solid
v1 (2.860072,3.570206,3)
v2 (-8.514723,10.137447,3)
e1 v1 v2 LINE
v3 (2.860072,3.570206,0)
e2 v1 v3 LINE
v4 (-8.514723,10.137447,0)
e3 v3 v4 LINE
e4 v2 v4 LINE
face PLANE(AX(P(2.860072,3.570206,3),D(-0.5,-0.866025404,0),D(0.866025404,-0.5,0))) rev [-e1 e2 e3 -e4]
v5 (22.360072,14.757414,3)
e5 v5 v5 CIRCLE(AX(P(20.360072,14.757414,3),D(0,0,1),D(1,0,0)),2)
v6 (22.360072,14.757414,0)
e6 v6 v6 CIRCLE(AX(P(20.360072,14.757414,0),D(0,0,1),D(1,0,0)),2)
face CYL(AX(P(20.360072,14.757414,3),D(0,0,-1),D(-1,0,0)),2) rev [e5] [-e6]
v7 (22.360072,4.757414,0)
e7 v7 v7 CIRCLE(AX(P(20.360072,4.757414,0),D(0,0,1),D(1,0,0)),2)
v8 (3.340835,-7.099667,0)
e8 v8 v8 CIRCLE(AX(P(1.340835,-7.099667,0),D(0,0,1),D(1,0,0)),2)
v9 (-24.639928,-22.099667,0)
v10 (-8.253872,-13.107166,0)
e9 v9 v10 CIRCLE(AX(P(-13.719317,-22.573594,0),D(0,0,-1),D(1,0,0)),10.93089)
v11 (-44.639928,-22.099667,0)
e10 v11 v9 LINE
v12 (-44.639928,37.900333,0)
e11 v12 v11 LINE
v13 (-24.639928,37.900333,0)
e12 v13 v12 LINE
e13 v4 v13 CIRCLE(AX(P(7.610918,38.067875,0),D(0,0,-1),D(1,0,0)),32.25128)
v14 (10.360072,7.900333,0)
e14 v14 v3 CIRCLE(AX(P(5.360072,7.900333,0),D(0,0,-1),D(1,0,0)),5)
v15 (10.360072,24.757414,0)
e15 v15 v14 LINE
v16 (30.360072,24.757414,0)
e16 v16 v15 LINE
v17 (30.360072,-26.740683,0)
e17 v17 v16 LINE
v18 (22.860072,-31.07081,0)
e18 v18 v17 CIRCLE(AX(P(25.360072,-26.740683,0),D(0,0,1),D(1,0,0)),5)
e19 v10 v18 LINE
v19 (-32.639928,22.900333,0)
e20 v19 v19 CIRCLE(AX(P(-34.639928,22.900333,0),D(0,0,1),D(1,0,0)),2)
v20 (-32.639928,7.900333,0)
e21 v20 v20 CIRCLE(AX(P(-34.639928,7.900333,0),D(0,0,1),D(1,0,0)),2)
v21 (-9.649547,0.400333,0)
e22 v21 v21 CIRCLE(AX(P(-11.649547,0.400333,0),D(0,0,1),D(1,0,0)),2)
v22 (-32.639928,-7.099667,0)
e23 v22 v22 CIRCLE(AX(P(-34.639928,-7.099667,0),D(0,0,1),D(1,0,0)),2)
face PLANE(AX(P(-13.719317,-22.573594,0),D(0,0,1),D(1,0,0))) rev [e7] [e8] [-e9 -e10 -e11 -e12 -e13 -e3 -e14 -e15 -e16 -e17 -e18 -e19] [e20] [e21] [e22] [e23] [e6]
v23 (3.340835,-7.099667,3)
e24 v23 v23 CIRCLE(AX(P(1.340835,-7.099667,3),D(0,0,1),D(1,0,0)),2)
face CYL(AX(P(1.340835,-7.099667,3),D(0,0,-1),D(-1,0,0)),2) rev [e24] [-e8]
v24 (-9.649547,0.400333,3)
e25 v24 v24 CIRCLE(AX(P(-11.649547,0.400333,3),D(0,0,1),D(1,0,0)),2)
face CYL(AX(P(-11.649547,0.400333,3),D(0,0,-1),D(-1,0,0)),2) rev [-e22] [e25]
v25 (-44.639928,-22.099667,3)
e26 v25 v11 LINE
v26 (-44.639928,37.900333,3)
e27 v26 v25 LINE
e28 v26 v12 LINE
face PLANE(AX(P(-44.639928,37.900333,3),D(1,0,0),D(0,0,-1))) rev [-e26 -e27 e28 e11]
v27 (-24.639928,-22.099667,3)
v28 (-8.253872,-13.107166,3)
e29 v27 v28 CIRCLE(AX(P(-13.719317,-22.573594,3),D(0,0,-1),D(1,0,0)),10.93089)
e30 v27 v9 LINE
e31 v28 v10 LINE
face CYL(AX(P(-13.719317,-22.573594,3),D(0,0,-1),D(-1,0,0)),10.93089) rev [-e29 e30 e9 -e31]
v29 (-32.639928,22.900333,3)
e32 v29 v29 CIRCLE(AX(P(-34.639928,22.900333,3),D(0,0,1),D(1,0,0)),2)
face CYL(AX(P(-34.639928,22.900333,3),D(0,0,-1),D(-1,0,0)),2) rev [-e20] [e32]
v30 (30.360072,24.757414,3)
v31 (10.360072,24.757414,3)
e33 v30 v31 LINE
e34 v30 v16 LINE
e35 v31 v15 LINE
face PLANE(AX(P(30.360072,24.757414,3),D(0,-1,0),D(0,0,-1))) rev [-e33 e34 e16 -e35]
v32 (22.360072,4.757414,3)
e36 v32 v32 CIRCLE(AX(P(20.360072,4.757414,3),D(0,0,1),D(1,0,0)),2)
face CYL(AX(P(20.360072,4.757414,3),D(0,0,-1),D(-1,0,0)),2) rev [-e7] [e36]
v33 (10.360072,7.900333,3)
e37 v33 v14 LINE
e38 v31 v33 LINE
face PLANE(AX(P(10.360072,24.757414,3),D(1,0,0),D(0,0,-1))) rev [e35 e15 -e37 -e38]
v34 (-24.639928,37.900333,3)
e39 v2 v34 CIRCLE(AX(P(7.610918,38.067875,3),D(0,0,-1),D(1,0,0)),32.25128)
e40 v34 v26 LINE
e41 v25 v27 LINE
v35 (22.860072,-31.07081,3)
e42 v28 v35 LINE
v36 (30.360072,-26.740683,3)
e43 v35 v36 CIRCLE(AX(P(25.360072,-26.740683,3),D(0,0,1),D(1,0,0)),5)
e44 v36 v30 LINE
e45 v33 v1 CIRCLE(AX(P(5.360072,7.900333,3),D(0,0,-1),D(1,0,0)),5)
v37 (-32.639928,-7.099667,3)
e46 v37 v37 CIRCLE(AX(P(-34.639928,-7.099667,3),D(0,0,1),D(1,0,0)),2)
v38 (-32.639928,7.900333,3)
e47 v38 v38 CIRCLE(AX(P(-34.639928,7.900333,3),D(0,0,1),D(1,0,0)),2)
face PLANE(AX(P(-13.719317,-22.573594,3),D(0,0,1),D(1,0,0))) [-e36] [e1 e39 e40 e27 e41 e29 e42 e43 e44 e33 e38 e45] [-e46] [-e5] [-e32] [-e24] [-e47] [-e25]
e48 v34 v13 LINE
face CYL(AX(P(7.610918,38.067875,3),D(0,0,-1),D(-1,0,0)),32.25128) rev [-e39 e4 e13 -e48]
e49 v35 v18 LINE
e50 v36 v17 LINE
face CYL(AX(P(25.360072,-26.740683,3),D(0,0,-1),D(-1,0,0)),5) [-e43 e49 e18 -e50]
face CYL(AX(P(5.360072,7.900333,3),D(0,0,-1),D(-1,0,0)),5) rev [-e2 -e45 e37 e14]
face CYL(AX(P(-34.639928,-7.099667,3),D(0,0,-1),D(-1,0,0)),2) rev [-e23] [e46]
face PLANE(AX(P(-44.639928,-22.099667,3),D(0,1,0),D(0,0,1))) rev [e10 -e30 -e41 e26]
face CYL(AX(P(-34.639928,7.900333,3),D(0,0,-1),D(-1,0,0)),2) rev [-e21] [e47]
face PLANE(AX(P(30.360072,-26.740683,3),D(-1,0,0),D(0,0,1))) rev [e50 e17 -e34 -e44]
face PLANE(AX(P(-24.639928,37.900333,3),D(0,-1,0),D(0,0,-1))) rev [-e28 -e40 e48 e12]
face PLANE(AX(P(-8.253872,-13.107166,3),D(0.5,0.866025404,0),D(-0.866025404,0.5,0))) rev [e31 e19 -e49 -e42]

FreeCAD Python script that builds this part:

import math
import FreeCAD as App
import Part
import Sketcher
Q = App.Units.Quantity

doc = App.newDocument("Part")
params = doc.addObject("Spreadsheet::Sheet", "Params")
for row, (alias, value) in enumerate([
    ("sketch1_diameter", "4 mm"),
    ("sketch1_radius", "5 mm"),
    ("sketch1_width", "20 mm"),
    ("sketch1_height", "60 mm"),
    ("pad1_length", "3 mm"),
], start=1):
    params.set(f"A{row}", alias)
    params.set(f"B{row}", "=" + value)
    params.setAlias(f"B{row}", alias)

body = doc.addObject("PartDesign::Body", "Body")

# Sketch on XY plane
sketch1 = body.newObject("Sketcher::SketchObject", "Sketch")
sketch1.AttachmentSupport = (doc.getObject("XY_Plane"), [""])
sketch1.MapMode = "FlatFace"
sketch1.addGeometry([
    Part.LineSegment(App.Vector(-8.3, -13.1, 0), App.Vector(22.9, -31.1, 0)),  # 0
    Part.ArcOfCircle(Part.Circle(App.Vector(25.4, -26.7, 0), App.Vector(0, 0, 1), 5), math.radians(-120), math.radians(0)),  # 1
    Part.LineSegment(App.Vector(30.4, -26.7, 0), App.Vector(30.4, 24.8, 0)),  # 2
    Part.LineSegment(App.Vector(30.4, 24.8, 0), App.Vector(10.4, 24.8, 0)),  # 3
    Part.LineSegment(App.Vector(10.4, 24.8, 0), App.Vector(10.4, 7.9, 0)),  # 4
    Part.ArcOfCircle(Part.Circle(App.Vector(5.4, 7.9, 0), App.Vector(0, 0, 1), 5), math.radians(-120), math.radians(0)),  # 5
    Part.LineSegment(App.Vector(2.9, 3.6, 0), App.Vector(-8.5, 10.1, 0)),  # 6
    Part.ArcOfCircle(Part.Circle(App.Vector(7.6, 38.1, 0), App.Vector(0, 0, 1), 32.3), math.radians(-180), math.radians(-120)),  # 7
    Part.LineSegment(App.Vector(-24.6, 37.9, 0), App.Vector(-44.6, 37.9, 0)),  # 8
    Part.LineSegment(App.Vector(-44.6, 37.9, 0), App.Vector(-44.6, -22.1, 0)),  # 9
    Part.LineSegment(App.Vector(-44.6, -22.1, 0), App.Vector(-24.6, -22.1, 0)),  # 10
    Part.ArcOfCircle(Part.Circle(App.Vector(-13.7, -22.6, 0), App.Vector(0, 0, 1), 10.9), math.radians(60), math.radians(178)),  # 11
    Part.Circle(App.Vector(-34.6, -7.1, 0), App.Vector(0, 0, 1), 2),  # 12
    Part.Circle(App.Vector(-11.6, 0.4, 0), App.Vector(0, 0, 1), 2),  # 13
    Part.Circle(App.Vector(1.3, -7.1, 0), App.Vector(0, 0, 1), 2),  # 14
    Part.Circle(App.Vector(20.4, 4.8, 0), App.Vector(0, 0, 1), 2),  # 15
    Part.Circle(App.Vector(-34.6, 7.9, 0), App.Vector(0, 0, 1), 2),  # 16
    Part.Circle(App.Vector(-34.6, 22.9, 0), App.Vector(0, 0, 1), 2),  # 17
    Part.Circle(App.Vector(20.4, 14.8, 0), App.Vector(0, 0, 1), 2),  # 18
], False)
sketch1.addConstraint([
    Sketcher.Constraint("Tangent", 0, 2, 1, 1),
    Sketcher.Constraint("Tangent", 1, 2, 2, 1),
    Sketcher.Constraint("Coincident", 2, 2, 3, 1),
    Sketcher.Constraint("Coincident", 3, 2, 4, 1),
    Sketcher.Constraint("Tangent", 4, 2, 5, 2),
    Sketcher.Constraint("Tangent", 5, 1, 6, 1),
    Sketcher.Constraint("Tangent", 6, 2, 7, 2),
    Sketcher.Constraint("Coincident", 7, 1, 8, 1),
    Sketcher.Constraint("Coincident", 8, 2, 9, 1),
    Sketcher.Constraint("Coincident", 9, 2, 10, 1),
    Sketcher.Constraint("Coincident", 10, 2, 11, 2),
    Sketcher.Constraint("Tangent", 11, 1, 0, 1),
    Sketcher.Constraint("Vertical", 2),
    Sketcher.Constraint("Horizontal", 3),
    Sketcher.Constraint("Vertical", 4),
    Sketcher.Constraint("Horizontal", 8),
    Sketcher.Constraint("Vertical", 9),
    Sketcher.Constraint("Horizontal", 10),
    Sketcher.Constraint("Equal", 1, 5),
    Sketcher.Constraint("Equal", 12, 13),
    Sketcher.Constraint("Equal", 13, 14),
    Sketcher.Constraint("Equal", 14, 15),
    Sketcher.Constraint("Equal", 15, 16),
    Sketcher.Constraint("Equal", 16, 17),
    Sketcher.Constraint("Equal", 17, 18),
    Sketcher.Constraint("Parallel", 0, 6),
    Sketcher.Constraint("Horizontal", 12, 3, 14, 3),
    Sketcher.Constraint("Horizontal", 5, 3, 16, 3),
    Sketcher.Constraint("Vertical", 12, 3, 16, 3),
    Sketcher.Constraint("Vertical", 16, 3, 17, 3),
    Sketcher.Constraint("Vertical", 15, 3, 18, 3),
    Sketcher.Constraint("Vertical", 7, 1, 10, 2),
    Sketcher.Constraint("Equal", 3, 8),
    Sketcher.Constraint("Diameter", 12, 4.0),
    Sketcher.Constraint("Radius", 1, 5.0),
    Sketcher.Constraint("DistanceX", 3, 2, 3, 1, 20.0),
    Sketcher.Constraint("DistanceY", 9, 2, 9, 1, 60.0),
    Sketcher.Constraint("Angle", 0, Q("-30 deg")),
    Sketcher.Constraint("DistanceX", 12, 3, 5, 3, 40.0),
    Sketcher.Constraint("DistanceY", 12, 3, 5, 3, 15.0),
    Sketcher.Constraint("DistanceX", 5, 3, 15, 3, 15.0),
    Sketcher.Constraint("DistanceY", 16, 3, 17, 3, 15.0),
    Sketcher.Constraint("DistanceY", 15, 3, 18, 3, 10.0),
    Sketcher.Constraint("DistanceY", 18, 3, 2, 2, 10.0),
    Sketcher.Constraint("DistanceX", 17, 3, 7, 1, 10.0),
    Sketcher.Constraint("DistanceY", 17, 3, 7, 1, 15.0),
    Sketcher.Constraint("DistanceY", 13, 3, 5, 3, 7.5),
    Sketcher.Constraint("Radius", 7, 32.25128),
    Sketcher.Constraint("Radius", 11, 10.93089),
    Sketcher.Constraint("DistanceY", 4, 2, 4, 1, 16.857081),
    Sketcher.Constraint("DistanceY", 11, 1, 14, 3, 6.007499),
    Sketcher.Constraint("DistanceY", 0, 2, -1, 1, 31.07081),
    Sketcher.Constraint("DistanceX", 11, 1, -1, 1, 8.253872),
    Sketcher.Constraint("DistanceX", 13, 3, 5, 3, 17.009619),
    Sketcher.Constraint("DistanceX", 13, 3, 14, 3, 12.990381),
])
sketch1.setExpression("Constraints[33]", "Params.sketch1_diameter")
sketch1.setExpression("Constraints[34]", "Params.sketch1_radius")
sketch1.setExpression("Constraints[35]", "Params.sketch1_width")
sketch1.setExpression("Constraints[36]", "Params.sketch1_height")
pad1 = body.newObject("PartDesign::Pad", "Pad")
pad1.Profile = sketch1
pad1.setExpression("Length", "Params.pad1_length")

doc.recompute()
